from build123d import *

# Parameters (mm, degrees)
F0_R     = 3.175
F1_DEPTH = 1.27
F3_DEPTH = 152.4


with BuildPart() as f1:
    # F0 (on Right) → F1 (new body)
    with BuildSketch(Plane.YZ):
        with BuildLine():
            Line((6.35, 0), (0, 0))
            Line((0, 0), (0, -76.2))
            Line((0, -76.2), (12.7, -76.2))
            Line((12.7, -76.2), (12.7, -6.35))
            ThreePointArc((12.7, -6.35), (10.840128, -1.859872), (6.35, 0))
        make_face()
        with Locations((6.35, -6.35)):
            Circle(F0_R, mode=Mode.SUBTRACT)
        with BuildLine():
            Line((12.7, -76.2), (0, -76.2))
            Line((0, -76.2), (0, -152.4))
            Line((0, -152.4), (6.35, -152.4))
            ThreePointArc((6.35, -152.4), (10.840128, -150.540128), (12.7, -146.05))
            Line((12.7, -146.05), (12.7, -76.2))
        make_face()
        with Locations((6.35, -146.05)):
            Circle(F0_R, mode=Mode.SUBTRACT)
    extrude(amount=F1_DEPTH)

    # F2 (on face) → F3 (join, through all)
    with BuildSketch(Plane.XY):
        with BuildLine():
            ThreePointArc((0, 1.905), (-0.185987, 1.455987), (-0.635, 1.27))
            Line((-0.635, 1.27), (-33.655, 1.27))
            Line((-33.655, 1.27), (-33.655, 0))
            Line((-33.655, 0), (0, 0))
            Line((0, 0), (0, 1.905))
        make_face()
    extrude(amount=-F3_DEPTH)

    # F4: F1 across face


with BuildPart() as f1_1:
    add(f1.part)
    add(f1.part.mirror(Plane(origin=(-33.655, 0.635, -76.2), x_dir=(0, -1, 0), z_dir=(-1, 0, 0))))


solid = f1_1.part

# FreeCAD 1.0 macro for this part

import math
import FreeCAD as App
import Part
import Sketcher
Q = App.Units.Quantity

doc = App.newDocument("Part")
body = doc.addObject("PartDesign::Body", "Body")

# Sketch on YZ plane
sketch1 = body.newObject("Sketcher::SketchObject", "Sketch")
sketch1.AttachmentSupport = (doc.getObject("YZ_Plane"), [""])
sketch1.MapMode = "FlatFace"
sketch1.addGeometry([
    Part.LineSegment(App.Vector(6.3, 0, 0), App.Vector(0, 0, 0)),  # 0
    Part.LineSegment(App.Vector(0, 0, 0), App.Vector(0, -152.4, 0)),  # 1
    Part.LineSegment(App.Vector(0, -152.4, 0), App.Vector(6.3, -152.4, 0)),  # 2
    Part.ArcOfCircle(Part.Circle(App.Vector(6.3, -146, 0), App.Vector(0, 0, 1), 6.4), math.radians(-90), math.radians(0)),  # 3
    Part.LineSegment(App.Vector(12.7, -146.1, 0), App.Vector(12.7, -6.3, 0)),  # 4
    Part.ArcOfCircle(Part.Circle(App.Vector(6.3, -6.4, 0), App.Vector(0, 0, 1), 6.4), math.radians(0), math.radians(90)),  # 5
    Part.Circle(App.Vector(6.3, -146.1, 0), App.Vector(0, 0, 1), 3.2),  # 6
    Part.Circle(App.Vector(6.3, -6.3, 0), App.Vector(0, 0, 1), 3.2),  # 7
], False)
sketch1.addConstraint([
    Sketcher.Constraint("Coincident", 0, 2, 1, 1),
    Sketcher.Constraint("Coincident", 1, 2, 2, 1),
    Sketcher.Constraint("Tangent", 2, 2, 3, 1),
    Sketcher.Constraint("Tangent", 3, 2, 4, 1),
    Sketcher.Constraint("Tangent", 4, 2, 5, 1),
    Sketcher.Constraint("Tangent", 5, 2, 0, 1),
    Sketcher.Constraint("Horizontal", 0),
    Sketcher.Constraint("Vertical", 1),
    Sketcher.Constraint("Horizontal", 2),
    Sketcher.Constraint("Vertical", 4),
    Sketcher.Constraint("Coincident", 0, 2, -1, 1),
    Sketcher.Constraint("Coincident", 6, 3, 3, 3),
    Sketcher.Constraint("Coincident", 7, 3, 5, 3),
    Sketcher.Constraint("Equal", 3, 5),
    Sketcher.Constraint("Equal", 6, 7),
    Sketcher.Constraint("Diameter", 6, Q("0.25 in")),
    Sketcher.Constraint("DistanceY", 1, 2, 1, 1, Q("6 in")),
    Sketcher.Constraint("Radius", 3, Q("0.25 in")),
    Sketcher.Constraint("DistanceX", 0, 2, 0, 1, Q("0.25 in")),
])
pad1 = body.newObject("PartDesign::Pad", "Pad")
pad1.Profile = sketch1
pad1.Length = Q("0.05 in")

# Sketch on XY plane
sketch2 = body.newObject("Sketcher::SketchObject", "Sketch001")
sketch2.AttachmentSupport = (doc.getObject("XY_Plane"), [""])
sketch2.MapMode = "FlatFace"
sketch2.addGeometry([
    Part.ArcOfCircle(Part.Circle(App.Vector(-0.6, 1.9, 0), App.Vector(0, 0, 1), 0.6), math.radians(-90), math.radians(0)),  # 0
    Part.LineSegment(App.Vector(-0.6, 1.3, 0), App.Vector(-33.7, 1.3, 0)),  # 1
    Part.LineSegment(App.Vector(-33.7, 1.3, 0), App.Vector(-33.7, 0, 0)),  # 2
    Part.LineSegment(App.Vector(-33.7, 0, 0), App.Vector(0, 0, 0)),  # 3
    Part.LineSegment(App.Vector(0, 0, 0), App.Vector(0, 1.9, 0)),  # 4
], False)
sketch2.addConstraint([
    Sketcher.Constraint("Tangent", 0, 1, 1, 1),
    Sketcher.Constraint("Coincident", 1, 2, 2, 1),
    Sketcher.Constraint("Coincident", 2, 2, 3, 1),
    Sketcher.Constraint("Coincident", 3, 2, 4, 1),
    Sketcher.Constraint("Tangent", 4, 2, 0, 2),
    Sketcher.Constraint("Horizontal", 1),
    Sketcher.Constraint("Vertical", 2),
    Sketcher.Constraint("Horizontal", 3),
    Sketcher.Constraint("Vertical", 4),
    Sketcher.Constraint("Coincident", 3, 2, -1, 1),
    Sketcher.Constraint("DistanceX", 1, 2, 1, 1, Q("1.3 in")),
    Sketcher.Constraint("Radius", 0, Q("0.025 in")),
    Sketcher.Constraint("DistanceY", 2, 2, 2, 1, Q("0.05 in")),
])
pad2 = body.newObject("PartDesign::Pad", "Pad001")
pad2.Profile = sketch2
pad2.Length = Q("6 in")
pad2.Reversed = True
body2 = doc.addObject("PartDesign::Body", "Body001")
doc.recompute()

body2.BaseFeature = body
doc.recompute()

mirroring = doc.addObject("Part::Mirroring", "Mirroring")
mirroring.Source = body
mirroring.Base = App.Vector(-33.655, 0.635, -76.2)
mirroring.Normal = App.Vector(-1, 0, 0)
body3 = doc.addObject("PartDesign::Body", "Body002")
body3.BaseFeature = mirroring
boolean = body2.newObject("PartDesign::Boolean", "Boolean")
boolean.Type = "Fuse"
boolean.addObjects([body3])
doc.recompute()
mirroring.Visibility = False

doc.recompute()
